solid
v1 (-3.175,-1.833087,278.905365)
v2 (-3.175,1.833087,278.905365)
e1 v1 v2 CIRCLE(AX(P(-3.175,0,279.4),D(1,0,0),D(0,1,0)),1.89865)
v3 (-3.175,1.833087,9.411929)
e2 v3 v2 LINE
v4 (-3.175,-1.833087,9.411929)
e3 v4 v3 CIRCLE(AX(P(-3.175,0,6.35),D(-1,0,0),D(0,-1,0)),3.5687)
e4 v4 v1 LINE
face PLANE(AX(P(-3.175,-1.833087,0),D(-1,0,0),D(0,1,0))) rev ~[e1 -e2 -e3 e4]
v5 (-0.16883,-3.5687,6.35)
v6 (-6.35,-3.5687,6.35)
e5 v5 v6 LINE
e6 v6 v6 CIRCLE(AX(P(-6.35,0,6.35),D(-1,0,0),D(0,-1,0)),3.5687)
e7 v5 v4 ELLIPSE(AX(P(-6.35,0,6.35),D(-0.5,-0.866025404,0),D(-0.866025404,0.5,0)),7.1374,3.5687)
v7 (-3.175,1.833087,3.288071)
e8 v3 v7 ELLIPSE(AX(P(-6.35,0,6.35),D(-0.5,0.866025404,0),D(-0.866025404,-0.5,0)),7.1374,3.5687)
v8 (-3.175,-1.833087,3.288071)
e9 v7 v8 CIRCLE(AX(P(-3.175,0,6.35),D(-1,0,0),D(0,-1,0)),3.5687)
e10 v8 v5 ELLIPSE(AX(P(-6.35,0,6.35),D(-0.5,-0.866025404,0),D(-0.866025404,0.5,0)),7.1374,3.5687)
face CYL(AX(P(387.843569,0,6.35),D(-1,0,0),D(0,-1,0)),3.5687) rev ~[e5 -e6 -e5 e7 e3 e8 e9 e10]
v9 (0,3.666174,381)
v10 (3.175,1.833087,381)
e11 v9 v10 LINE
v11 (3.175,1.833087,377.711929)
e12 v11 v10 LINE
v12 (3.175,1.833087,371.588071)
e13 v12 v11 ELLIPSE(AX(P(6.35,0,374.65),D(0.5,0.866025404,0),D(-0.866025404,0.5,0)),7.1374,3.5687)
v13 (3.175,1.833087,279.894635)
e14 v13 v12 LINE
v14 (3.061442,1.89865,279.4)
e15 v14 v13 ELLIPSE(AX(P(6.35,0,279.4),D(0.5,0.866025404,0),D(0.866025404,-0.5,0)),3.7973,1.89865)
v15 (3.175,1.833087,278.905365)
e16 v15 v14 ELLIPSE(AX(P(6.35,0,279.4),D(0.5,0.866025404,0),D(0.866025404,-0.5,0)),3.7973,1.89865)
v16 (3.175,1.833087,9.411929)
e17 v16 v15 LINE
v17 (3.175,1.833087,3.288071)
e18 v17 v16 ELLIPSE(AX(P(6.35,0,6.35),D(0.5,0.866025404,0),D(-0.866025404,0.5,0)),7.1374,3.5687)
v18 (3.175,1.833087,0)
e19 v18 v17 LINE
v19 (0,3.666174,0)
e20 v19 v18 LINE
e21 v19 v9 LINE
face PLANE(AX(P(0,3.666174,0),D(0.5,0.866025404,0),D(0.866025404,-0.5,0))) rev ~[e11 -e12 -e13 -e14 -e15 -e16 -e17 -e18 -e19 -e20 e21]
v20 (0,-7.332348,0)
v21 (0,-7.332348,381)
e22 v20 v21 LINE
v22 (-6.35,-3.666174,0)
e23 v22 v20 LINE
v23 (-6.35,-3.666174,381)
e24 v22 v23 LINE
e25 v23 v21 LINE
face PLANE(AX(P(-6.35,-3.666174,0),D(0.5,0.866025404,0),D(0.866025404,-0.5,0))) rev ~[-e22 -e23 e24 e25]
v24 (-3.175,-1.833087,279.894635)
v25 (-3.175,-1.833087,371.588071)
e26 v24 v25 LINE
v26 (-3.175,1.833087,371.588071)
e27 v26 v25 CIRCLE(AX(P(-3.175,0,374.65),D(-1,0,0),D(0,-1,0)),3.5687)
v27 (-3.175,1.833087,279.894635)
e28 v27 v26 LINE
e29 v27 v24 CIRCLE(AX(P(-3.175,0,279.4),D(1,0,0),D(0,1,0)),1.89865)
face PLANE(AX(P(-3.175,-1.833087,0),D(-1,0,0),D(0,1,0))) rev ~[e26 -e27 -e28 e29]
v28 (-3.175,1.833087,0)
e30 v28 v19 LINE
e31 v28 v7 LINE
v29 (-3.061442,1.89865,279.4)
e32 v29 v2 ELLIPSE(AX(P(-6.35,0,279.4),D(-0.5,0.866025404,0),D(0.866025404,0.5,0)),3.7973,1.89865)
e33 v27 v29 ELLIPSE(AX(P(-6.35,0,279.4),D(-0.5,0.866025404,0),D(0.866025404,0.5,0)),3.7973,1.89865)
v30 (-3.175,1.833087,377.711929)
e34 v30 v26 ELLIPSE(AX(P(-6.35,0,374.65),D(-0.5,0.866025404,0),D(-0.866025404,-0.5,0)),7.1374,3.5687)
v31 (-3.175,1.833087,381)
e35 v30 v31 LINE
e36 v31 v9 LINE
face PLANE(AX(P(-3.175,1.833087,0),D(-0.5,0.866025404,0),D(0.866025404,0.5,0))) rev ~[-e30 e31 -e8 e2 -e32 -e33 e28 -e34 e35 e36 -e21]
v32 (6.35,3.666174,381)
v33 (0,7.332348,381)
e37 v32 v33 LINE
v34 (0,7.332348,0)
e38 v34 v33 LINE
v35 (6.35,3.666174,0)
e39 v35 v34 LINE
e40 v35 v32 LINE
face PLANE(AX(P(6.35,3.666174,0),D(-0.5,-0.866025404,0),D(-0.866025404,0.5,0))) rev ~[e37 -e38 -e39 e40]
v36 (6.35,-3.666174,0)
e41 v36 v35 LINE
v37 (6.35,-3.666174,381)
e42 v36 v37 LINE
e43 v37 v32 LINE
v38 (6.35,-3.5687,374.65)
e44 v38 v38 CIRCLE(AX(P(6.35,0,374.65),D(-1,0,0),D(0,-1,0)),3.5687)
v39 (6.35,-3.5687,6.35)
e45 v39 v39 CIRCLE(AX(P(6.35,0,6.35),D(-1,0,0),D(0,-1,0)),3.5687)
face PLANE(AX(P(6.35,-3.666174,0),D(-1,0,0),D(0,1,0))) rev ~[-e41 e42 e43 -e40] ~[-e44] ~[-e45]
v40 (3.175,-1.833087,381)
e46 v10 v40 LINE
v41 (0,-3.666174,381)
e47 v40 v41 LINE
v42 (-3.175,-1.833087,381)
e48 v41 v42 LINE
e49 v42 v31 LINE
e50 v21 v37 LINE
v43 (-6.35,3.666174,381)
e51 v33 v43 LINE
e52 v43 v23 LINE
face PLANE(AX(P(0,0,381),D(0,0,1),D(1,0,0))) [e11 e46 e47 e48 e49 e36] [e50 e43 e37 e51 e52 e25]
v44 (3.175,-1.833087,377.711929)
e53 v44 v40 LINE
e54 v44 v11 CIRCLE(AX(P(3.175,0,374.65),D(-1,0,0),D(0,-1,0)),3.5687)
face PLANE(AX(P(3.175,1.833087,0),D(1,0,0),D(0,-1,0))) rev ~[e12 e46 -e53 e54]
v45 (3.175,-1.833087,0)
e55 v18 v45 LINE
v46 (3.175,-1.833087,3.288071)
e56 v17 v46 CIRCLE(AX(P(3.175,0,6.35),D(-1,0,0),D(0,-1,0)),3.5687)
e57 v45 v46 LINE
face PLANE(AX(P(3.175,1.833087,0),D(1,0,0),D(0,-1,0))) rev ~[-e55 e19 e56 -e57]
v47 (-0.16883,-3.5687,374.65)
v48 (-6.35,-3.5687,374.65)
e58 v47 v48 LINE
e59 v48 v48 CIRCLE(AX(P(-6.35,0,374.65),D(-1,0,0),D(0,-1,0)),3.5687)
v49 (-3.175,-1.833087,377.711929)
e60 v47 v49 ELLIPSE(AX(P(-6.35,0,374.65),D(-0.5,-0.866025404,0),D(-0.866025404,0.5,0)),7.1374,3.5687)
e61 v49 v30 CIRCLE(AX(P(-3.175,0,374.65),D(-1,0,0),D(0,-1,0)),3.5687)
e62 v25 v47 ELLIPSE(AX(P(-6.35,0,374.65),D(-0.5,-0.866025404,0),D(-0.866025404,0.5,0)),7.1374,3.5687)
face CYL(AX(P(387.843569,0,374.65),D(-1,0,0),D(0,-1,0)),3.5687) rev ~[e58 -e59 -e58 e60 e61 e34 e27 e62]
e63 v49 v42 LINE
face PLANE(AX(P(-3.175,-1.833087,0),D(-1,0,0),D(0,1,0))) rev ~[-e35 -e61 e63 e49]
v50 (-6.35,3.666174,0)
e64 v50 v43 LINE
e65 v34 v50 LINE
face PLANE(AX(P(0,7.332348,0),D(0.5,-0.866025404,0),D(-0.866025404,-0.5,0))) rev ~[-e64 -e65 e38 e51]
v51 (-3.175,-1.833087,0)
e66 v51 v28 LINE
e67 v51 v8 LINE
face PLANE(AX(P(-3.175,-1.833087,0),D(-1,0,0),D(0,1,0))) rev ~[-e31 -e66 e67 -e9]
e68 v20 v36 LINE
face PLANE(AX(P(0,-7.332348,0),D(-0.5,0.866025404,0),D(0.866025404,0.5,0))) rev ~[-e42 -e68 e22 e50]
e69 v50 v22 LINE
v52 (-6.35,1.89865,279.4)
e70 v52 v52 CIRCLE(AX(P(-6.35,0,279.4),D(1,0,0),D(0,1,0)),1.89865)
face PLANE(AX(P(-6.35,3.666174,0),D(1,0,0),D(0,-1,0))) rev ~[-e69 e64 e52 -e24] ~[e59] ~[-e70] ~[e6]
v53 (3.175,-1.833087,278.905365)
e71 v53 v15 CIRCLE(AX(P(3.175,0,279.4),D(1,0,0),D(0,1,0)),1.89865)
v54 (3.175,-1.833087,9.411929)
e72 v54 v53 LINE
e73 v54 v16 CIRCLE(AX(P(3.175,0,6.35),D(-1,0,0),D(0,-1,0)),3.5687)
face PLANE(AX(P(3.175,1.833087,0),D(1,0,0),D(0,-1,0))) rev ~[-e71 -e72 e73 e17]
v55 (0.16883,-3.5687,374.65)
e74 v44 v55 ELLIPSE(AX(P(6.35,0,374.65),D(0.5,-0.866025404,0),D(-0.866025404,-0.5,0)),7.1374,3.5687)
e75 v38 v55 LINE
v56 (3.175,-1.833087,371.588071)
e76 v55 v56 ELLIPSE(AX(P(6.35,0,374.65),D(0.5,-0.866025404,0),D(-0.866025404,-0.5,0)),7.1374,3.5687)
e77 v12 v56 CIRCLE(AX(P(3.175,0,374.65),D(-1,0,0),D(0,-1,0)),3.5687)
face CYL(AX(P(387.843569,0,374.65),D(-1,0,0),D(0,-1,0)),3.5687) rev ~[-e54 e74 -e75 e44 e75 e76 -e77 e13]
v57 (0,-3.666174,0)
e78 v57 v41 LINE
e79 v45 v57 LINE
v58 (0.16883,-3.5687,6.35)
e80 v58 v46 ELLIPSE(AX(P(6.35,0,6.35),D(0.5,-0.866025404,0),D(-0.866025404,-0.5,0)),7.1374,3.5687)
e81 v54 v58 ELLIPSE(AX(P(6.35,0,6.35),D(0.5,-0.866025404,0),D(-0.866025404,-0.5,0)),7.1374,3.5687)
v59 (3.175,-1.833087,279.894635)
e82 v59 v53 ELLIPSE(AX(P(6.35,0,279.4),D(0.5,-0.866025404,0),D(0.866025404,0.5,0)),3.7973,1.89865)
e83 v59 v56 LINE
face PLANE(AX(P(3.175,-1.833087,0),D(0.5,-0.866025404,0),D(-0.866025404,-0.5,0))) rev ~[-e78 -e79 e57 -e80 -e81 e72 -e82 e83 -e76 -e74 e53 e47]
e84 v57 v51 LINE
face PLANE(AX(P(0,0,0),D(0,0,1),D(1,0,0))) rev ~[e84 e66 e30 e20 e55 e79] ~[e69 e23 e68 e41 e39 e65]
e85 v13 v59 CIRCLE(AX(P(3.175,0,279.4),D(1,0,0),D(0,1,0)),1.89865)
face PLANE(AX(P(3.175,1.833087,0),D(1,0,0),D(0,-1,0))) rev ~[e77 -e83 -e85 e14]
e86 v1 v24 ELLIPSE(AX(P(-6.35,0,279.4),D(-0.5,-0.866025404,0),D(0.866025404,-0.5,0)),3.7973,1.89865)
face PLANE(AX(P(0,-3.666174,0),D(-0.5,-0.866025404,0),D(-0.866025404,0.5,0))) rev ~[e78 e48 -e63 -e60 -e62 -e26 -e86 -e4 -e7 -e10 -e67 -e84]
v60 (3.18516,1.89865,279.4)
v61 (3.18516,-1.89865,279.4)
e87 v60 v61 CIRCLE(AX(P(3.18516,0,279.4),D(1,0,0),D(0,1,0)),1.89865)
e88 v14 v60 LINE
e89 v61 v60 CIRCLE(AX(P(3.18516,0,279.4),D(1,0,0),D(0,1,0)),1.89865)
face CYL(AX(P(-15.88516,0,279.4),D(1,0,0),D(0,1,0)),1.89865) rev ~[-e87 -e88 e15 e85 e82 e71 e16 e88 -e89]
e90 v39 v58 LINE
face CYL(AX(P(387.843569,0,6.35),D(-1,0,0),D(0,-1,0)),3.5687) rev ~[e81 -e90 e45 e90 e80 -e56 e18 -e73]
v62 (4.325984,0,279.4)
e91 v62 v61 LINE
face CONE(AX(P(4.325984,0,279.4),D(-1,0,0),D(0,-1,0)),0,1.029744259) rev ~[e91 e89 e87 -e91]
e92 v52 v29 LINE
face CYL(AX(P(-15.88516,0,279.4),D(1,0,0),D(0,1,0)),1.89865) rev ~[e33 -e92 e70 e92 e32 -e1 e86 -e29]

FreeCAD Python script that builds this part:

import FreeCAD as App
import Part
import Sketcher
Q = App.Units.Quantity

doc = App.newDocument("Part")
params = doc.addObject("Spreadsheet::Sheet", "Params")
for row, (alias, value) in enumerate([
    ("pad1_length", "15 in"),
    ("sketch2_diameter", "0.281 in"),
    ("hole_diameter", "0.281 in"),
    ("hole2_diameter", "0.1495 in"),
    ("hole2_depth", "0.3754 in"),
], start=1):
    params.set(f"A{row}", alias)
    params.set(f"B{row}", "=" + value)
    params.setAlias(f"B{row}", alias)

body = doc.addObject("PartDesign::Body", "Body")

sketch1 = doc.addObject("Sketcher::SketchObject", "Sketch")
body.addObject(sketch1)
sketch1.AttachmentSupport = (doc.XY_Plane, [""])
sketch1.MapMode = "FlatFace"
sketch1.addGeometry(Part.LineSegment(App.Vector(6.3, 3.7, 0), App.Vector(0, 7.3, 0)), False)
sketch1.addGeometry(Part.LineSegment(App.Vector(0, 7.3, 0), App.Vector(-6.3, 3.7, 0)), False)
sketch1.addGeometry(Part.LineSegment(App.Vector(-6.3, 3.7, 0), App.Vector(-6.3, -3.7, 0)), False)
sketch1.addGeometry(Part.LineSegment(App.Vector(-6.3, -3.7, 0), App.Vector(0, -7.3, 0)), False)
sketch1.addGeometry(Part.LineSegment(App.Vector(0, -7.3, 0), App.Vector(6.3, -3.7, 0)), False)
sketch1.addGeometry(Part.LineSegment(App.Vector(6.3, -3.7, 0), App.Vector(6.3, 3.7, 0)), False)
sketch1.addGeometry(Part.LineSegment(App.Vector(-3.2, 1.8, 0), App.Vector(0, 3.7, 0)), False)
sketch1.addGeometry(Part.LineSegment(App.Vector(0, 3.7, 0), App.Vector(3.2, 1.8, 0)), False)
sketch1.addGeometry(Part.LineSegment(App.Vector(3.2, 1.8, 0), App.Vector(3.2, -1.8, 0)), False)
sketch1.addGeometry(Part.LineSegment(App.Vector(3.2, -1.8, 0), App.Vector(0, -3.7, 0)), False)
sketch1.addGeometry(Part.LineSegment(App.Vector(0, -3.7, 0), App.Vector(-3.2, -1.8, 0)), False)
sketch1.addGeometry(Part.LineSegment(App.Vector(-3.2, -1.8, 0), App.Vector(-3.2, 1.8, 0)), False)
sketch1.addConstraint(Sketcher.Constraint("Coincident", 0, 2, 1, 1))
sketch1.addConstraint(Sketcher.Constraint("Coincident", 1, 2, 2, 1))
sketch1.addConstraint(Sketcher.Constraint("Coincident", 2, 2, 3, 1))
sketch1.addConstraint(Sketcher.Constraint("Coincident", 3, 2, 4, 1))
sketch1.addConstraint(Sketcher.Constraint("Coincident", 4, 2, 5, 1))
sketch1.addConstraint(Sketcher.Constraint("Coincident", 5, 2, 0, 1))
sketch1.addConstraint(Sketcher.Constraint("Coincident", 6, 2, 7, 1))
sketch1.addConstraint(Sketcher.Constraint("Coincident", 7, 2, 8, 1))
sketch1.addConstraint(Sketcher.Constraint("Coincident", 8, 2, 9, 1))
sketch1.addConstraint(Sketcher.Constraint("Coincident", 9, 2, 10, 1))
sketch1.addConstraint(Sketcher.Constraint("Coincident", 10, 2, 11, 1))
sketch1.addConstraint(Sketcher.Constraint("Coincident", 11, 2, 6, 1))
sketch1.addConstraint(Sketcher.Constraint("Vertical", 2))
sketch1.addConstraint(Sketcher.Constraint("Vertical", 5))
sketch1.addConstraint(Sketcher.Constraint("Vertical", 8))
sketch1.addConstraint(Sketcher.Constraint("Vertical", 11))
sketch1.addConstraint(Sketcher.Constraint("Symmetric", 0, 2, 3, 2, -1, 1))
sketch1.addConstraint(Sketcher.Constraint("Symmetric", 1, 2, 4, 2, -1, 1))
sketch1.addConstraint(Sketcher.Constraint("Symmetric", 6, 2, 9, 2, -1, 1))
sketch1.addConstraint(Sketcher.Constraint("Symmetric", 7, 2, 10, 2, -1, 1))
sketch1.addConstraint(Sketcher.Constraint("PointOnObject", 0, 2, -2))
sketch1.addConstraint(Sketcher.Constraint("PointOnObject", 6, 2, -2))
sketch1.addConstraint(Sketcher.Constraint("Parallel", 0, 3))
sketch1.addConstraint(Sketcher.Constraint("Parallel", 4, 6))
sketch1.addConstraint(Sketcher.Constraint("Parallel", 3, 7))
sketch1.addConstraint(Sketcher.Constraint("Parallel", 6, 9))
sketch1.addConstraint(Sketcher.Constraint("Horizontal", 2, 2, 4, 2))
sketch1.addConstraint(Sketcher.Constraint("Horizontal", 5, 2, 6, 2))
sketch1.addConstraint(Sketcher.Constraint("Angle", 0, Q("150 deg")))
sketch1.addConstraint(Sketcher.Constraint("DistanceX", 2, 2, 4, 2, Q("0.5 in")))
sketch1.addConstraint(Sketcher.Constraint("DistanceX", -1, 1, 7, 2, Q("0.125 in")))
sketch1.addConstraint(Sketcher.Constraint("DistanceY", 2, 2, 2, 1, Q("7.332348 mm")))
pad1 = doc.addObject("PartDesign::Pad", "Pad")
body.addObject(pad1)
pad1.Profile = sketch1
pad1.setExpression("Length", "Params.pad1_length")

sketch2 = doc.addObject("Sketcher::SketchObject", "Sketch001")
body.addObject(sketch2)
sketch2.AttachmentSupport = (doc.YZ_Plane, [""])
sketch2.MapMode = "FlatFace"
sketch2.AttachmentOffset = App.Placement(App.Vector(0, 0, 0.25 * 25.4), App.Rotation())
sketch2.addGeometry(Part.Circle(App.Vector(0, 374.6, 0), App.Vector(0, 0, 1), 3.6), False)
sketch2.addGeometry(Part.Circle(App.Vector(0, 6.3, 0), App.Vector(0, 0, 1), 3.6), False)
sketch2.addConstraint(Sketcher.Constraint("Equal", 0, 1))
sketch2.addConstraint(Sketcher.Constraint("PointOnObject", 0, 3, -2))
sketch2.addConstraint(Sketcher.Constraint("PointOnObject", 1, 3, -2))
sketch2.addConstraint(Sketcher.Constraint("Diameter", 0, Q("0.281 in")))
sketch2.addConstraint(Sketcher.Constraint("DistanceY", 1, 3, 0, 3, Q("14.5 in")))
sketch2.addConstraint(Sketcher.Constraint("DistanceY", -1, 1, 0, 3, Q("14.75 in")))
sketch2.setExpression("Constraints[3]", "Params.sketch2_diameter")
doc.recompute()
hole = doc.addObject("PartDesign::Hole", "Hole")
body.addObject(hole)
hole.Profile = sketch2
hole.ThreadType = "None"
hole.setExpression("Diameter", "Params.hole_diameter")
hole.DepthType = "ThroughAll"

sketch3 = doc.addObject("Sketcher::SketchObject", "Sketch002")
body.addObject(sketch3)
sketch3.AttachmentSupport = (doc.YZ_Plane, [""])
sketch3.MapMode = "FlatFace"
sketch3.AttachmentOffset = App.Placement(App.Vector(0, 0, -0.25 * 25.4), App.Rotation())
sketch3.addGeometry(Part.Circle(App.Vector(0, 279.4, 0), App.Vector(0, 0, 1), 1.9), False)
sketch3.addConstraint(Sketcher.Constraint("PointOnObject", 0, 3, -2))
sketch3.addConstraint(Sketcher.Constraint("DistanceY", -1, 1, 0, 3, Q("11 in")))
sketch3.addConstraint(Sketcher.Constraint("Diameter", 0, Q("0.1495 in")))
doc.recompute()
hole2 = doc.addObject("PartDesign::Hole", "Hole001")
body.addObject(hole2)
hole2.Profile = sketch3
hole2.ThreadType = "None"
hole2.setExpression("Diameter", "Params.hole2_diameter")
hole2.DepthType = "Dimension"
hole2.setExpression("Depth", "Params.hole2_depth")
hole2.DrillPoint = "Angled"
hole2.DrillPointAngle = 118
hole2.Reversed = True

doc.recompute()
